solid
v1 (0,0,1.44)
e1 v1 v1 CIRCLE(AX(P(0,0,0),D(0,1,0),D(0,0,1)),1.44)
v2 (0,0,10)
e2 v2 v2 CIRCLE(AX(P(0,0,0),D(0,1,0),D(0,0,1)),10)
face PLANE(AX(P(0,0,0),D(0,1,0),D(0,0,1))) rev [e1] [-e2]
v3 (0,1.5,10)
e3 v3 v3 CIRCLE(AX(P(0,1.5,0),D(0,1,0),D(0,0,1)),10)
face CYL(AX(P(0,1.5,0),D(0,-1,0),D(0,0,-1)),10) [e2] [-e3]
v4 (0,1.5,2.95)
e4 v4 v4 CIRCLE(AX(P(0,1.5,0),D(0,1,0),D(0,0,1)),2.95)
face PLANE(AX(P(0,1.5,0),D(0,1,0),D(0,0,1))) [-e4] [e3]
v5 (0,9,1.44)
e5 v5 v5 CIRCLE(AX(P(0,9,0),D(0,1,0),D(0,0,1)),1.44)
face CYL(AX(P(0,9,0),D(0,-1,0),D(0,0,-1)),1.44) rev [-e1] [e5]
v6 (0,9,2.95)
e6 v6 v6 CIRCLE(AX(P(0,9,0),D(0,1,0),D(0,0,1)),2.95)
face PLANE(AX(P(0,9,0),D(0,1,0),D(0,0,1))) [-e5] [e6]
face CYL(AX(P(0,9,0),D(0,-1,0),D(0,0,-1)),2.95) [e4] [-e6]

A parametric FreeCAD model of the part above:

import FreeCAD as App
import Part
import Sketcher
Q = App.Units.Quantity

doc = App.newDocument("Part")
body = doc.addObject("PartDesign::Body", "Body")

sketch1 = body.newObject("Sketcher::SketchObject", "Sketch")
sketch1.AttachmentSupport = (doc.getObject("XZ_Plane"), [""])
sketch1.MapMode = "FlatFace"
sketch1.addGeometry([
    Part.Circle(App.Vector(0, 0, 0), App.Vector(0, 0, 1), 10),
    Part.Circle(App.Vector(0, 0, 0), App.Vector(0, 0, 1), 3),
], False)
sketch1.addConstraint([
    Sketcher.Constraint("Coincident", 0, 3, -1, 1),
    Sketcher.Constraint("Coincident", 1, 3, -1, 1),
    Sketcher.Constraint("Diameter", 0, Q("20 mm")),
    Sketcher.Constraint("Diameter", 1, Q("5.9 mm")),
])
pad1 = body.newObject("PartDesign::Pad", "Pad")
pad1.Profile = sketch1
pad1.Length = 1.5
pad1.Reversed = True

sketch2 = body.newObject("Sketcher::SketchObject", "Sketch001")
sketch2.AttachmentSupport = (doc.getObject("XZ_Plane"), [""])
sketch2.MapMode = "FlatFace"
sketch2.addGeometry([
    Part.Circle(App.Vector(0, 0, 0), App.Vector(0, 0, 1), 3),
    Part.Circle(App.Vector(0, 0, 0), App.Vector(0, 0, 1), 1.4),
], False)
sketch2.addConstraint([
    Sketcher.Constraint("Coincident", 0, 3, -1, 1),
    Sketcher.Constraint("Coincident", 1, 3, -1, 1),
    Sketcher.Constraint("Diameter", 0, Q("5.9 mm")),
    Sketcher.Constraint("Diameter", 1, Q("2.88 mm")),
])
pad2 = body.newObject("PartDesign::Pad", "Pad001")
pad2.Profile = sketch2
pad2.Length = 9
pad2.Reversed = True

doc.recompute()
